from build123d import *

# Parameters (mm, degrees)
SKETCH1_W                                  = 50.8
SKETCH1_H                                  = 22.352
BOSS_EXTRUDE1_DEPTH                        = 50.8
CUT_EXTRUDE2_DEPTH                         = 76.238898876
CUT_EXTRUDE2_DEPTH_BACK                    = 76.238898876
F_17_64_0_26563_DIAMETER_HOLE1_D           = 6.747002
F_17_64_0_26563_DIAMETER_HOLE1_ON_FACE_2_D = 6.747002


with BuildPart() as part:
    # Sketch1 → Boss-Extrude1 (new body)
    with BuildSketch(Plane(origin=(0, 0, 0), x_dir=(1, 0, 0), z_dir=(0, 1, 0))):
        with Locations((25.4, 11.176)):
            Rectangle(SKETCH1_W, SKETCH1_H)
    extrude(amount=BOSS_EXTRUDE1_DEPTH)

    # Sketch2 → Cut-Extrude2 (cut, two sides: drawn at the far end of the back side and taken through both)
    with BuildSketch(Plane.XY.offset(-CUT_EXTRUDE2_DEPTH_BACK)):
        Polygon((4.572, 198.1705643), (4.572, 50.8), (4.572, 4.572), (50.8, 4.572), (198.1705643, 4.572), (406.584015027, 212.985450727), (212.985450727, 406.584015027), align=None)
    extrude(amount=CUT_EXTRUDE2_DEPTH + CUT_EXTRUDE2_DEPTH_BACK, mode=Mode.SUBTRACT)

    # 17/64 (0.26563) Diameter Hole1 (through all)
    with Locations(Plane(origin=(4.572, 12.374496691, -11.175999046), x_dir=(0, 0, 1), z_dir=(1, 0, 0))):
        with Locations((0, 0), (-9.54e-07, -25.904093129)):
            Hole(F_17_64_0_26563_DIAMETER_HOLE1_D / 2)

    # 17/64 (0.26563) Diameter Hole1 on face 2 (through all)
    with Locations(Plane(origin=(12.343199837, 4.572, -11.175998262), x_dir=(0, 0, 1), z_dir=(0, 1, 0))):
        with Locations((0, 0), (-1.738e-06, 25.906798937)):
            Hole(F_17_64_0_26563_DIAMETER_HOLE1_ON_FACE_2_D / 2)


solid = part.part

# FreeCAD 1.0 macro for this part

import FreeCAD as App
import Part
import Sketcher
from FreeCAD import Vector
Q = App.Units.Quantity


def add_polygon(sketch, points):
    """Adds a closed chain of lines whose ends are joined by coincident constraints."""
    first, n = sketch.GeometryCount, len(points)
    for a, b in zip(points, points[1:] + points[:1]):
        sketch.addGeometry(Part.LineSegment(App.Vector(*a, 0), App.Vector(*b, 0)), False)
    for i in range(n):
        sketch.addConstraint(Sketcher.Constraint("Coincident", first + i, 2, first + (i + 1) % n, 1))

doc = App.newDocument("Part")
params = doc.addObject("Spreadsheet::Sheet", "Params")
for row, (alias, value) in enumerate([
    ("sketch1_width", "2 in"),
    ("sketch1_height", "0.88 in"),
    ("pad1_length", "2 in"),
    ("hole_diameter", "6.747002 mm"),
    ("hole2_diameter", "6.747002 mm"),
], start=1):
    params.set(f"A{row}", alias)
    params.set(f"B{row}", "=" + value)
    params.setAlias(f"B{row}", alias)

body = doc.addObject("PartDesign::Body", "Body")

# Sketch on XZ plane
sketch1 = body.newObject("Sketcher::SketchObject", "Sketch")
sketch1.AttachmentSupport = (doc.getObject("XZ_Plane"), [""])
sketch1.MapMode = "FlatFace"
add_polygon(sketch1, [(0, -22), (0, 0), (51, 0), (51, -22)])  # lines 0-3
sketch1.addConstraint(Sketcher.Constraint("Vertical", 0))
sketch1.addConstraint(Sketcher.Constraint("Horizontal", 1))
sketch1.addConstraint(Sketcher.Constraint("Vertical", 2))
sketch1.addConstraint(Sketcher.Constraint("Horizontal", 3))
sketch1.addConstraint(Sketcher.Constraint("Coincident", 0, 2, -1, 1))
sketch1.addConstraint(Sketcher.Constraint("DistanceX", 1, 1, 1, 2, Q("2 in")))
sketch1.addConstraint(Sketcher.Constraint("DistanceY", 0, 1, 0, 2, Q("0.88 in")))
sketch1.setExpression("Constraints[9]", "Params.sketch1_width")
sketch1.setExpression("Constraints[10]", "Params.sketch1_height")
pad1 = body.newObject("PartDesign::Pad", "Pad")
pad1.Profile = sketch1
pad1.setExpression("Length", "Params.pad1_length")
pad1.Reversed = True

# Sketch on XY plane
sketch2 = body.newObject("Sketcher::SketchObject", "Sketch001")
sketch2.AttachmentSupport = (doc.getObject("XY_Plane"), [""])
sketch2.MapMode = "FlatFace"
add_polygon(sketch2, [(5, 198), (5, 5), (198, 5), (407, 213), (213, 407)])  # lines 0-4
sketch2.addConstraint(Sketcher.Constraint("Vertical", 0))
sketch2.addConstraint(Sketcher.Constraint("Horizontal", 1))
sketch2.addConstraint(Sketcher.Constraint("Perpendicular", 2, 3))
sketch2.addConstraint(Sketcher.Constraint("Perpendicular", 3, 4))
sketch2.addConstraint(Sketcher.Constraint("Equal", 1, 0))
sketch2.addConstraint(Sketcher.Constraint("Equal", 2, 4))
sketch2.addConstraint(Sketcher.Constraint("DistanceX", -1, 1, 0, 2, Q("0.18 in")))
sketch2.addConstraint(Sketcher.Constraint("DistanceY", -1, 1, 0, 2, Q("0.18 in")))
sketch2.addConstraint(Sketcher.Constraint("Distance", 2, 294.741129))
sketch2.addConstraint(Sketcher.Constraint("DistanceX", 1, 1, 1, 2, 193.598564))
pocket1 = body.newObject("PartDesign::Pocket", "Pocket")
pocket1.Profile = sketch2
pocket1.Type = "ThroughAll"
pocket1.Midplane = True

# Sketch on YZ plane
sketch3 = body.newObject("Sketcher::SketchObject", "Sketch002")
sketch3.AttachmentSupport = (doc.getObject("YZ_Plane"), [""])
sketch3.MapMode = "FlatFace"
sketch3.AttachmentOffset = App.Placement(Vector(0, 0, 0.18 * 25.4), App.Rotation())
sketch3.addGeometry(Part.Circle(Vector(12.4, -11.2, 0), Vector(0, 0, 1), 3.4), False)
sketch3.addGeometry(Part.Circle(Vector(38.3, -11.2, 0), Vector(0, 0, 1), 3.4), False)
sketch3.addConstraint(Sketcher.Constraint("Equal", 0, 1))
sketch3.addConstraint(Sketcher.Constraint("Horizontal", 0, 3, 1, 3))
sketch3.addConstraint(Sketcher.Constraint("DistanceY", 0, 3, -1, 1, Q("0.44 in")))
sketch3.addConstraint(Sketcher.Constraint("Diameter", 0, 6.747002))
sketch3.addConstraint(Sketcher.Constraint("DistanceX", -1, 1, 1, 3, 38.27859))
sketch3.addConstraint(Sketcher.Constraint("DistanceX", -1, 1, 0, 3, 12.374497))
doc.recompute()
hole = body.newObject("PartDesign::Hole", "Hole")
hole.Profile = sketch3
hole.ThreadType = "None"
hole.setExpression("Diameter", "Params.hole_diameter")
hole.DepthType = "ThroughAll"

# Sketch on XZ plane
sketch4 = body.newObject("Sketcher::SketchObject", "Sketch003")
sketch4.AttachmentSupport = (doc.getObject("XZ_Plane"), [""])
sketch4.MapMode = "FlatFace"
sketch4.AttachmentOffset = App.Placement(Vector(0, 0, -0.18 * 25.4), App.Rotation())
sketch4.addGeometry(Part.Circle(Vector(12.3, -11.2, 0), Vector(0, 0, 1), 3.4), False)
sketch4.addGeometry(Part.Circle(Vector(38.2, -11.2, 0), Vector(0, 0, 1), 3.4), False)
sketch4.addConstraint(Sketcher.Constraint("Equal", 0, 1))
sketch4.addConstraint(Sketcher.Constraint("Horizontal", 0, 3, 1, 3))
sketch4.addConstraint(Sketcher.Constraint("DistanceY", 0, 3, -1, 1, Q("0.4399999 in")))
sketch4.addConstraint(Sketcher.Constraint("Diameter", 0, 6.747002))
sketch4.addConstraint(Sketcher.Constraint("DistanceX", -1, 1, 0, 3, 12.3432))
sketch4.addConstraint(Sketcher.Constraint("DistanceX", -1, 1, 1, 3, 38.249999))
doc.recompute()
hole2 = body.newObject("PartDesign::Hole", "Hole001")
hole2.Profile = sketch4
hole2.ThreadType = "None"
hole2.setExpression("Diameter", "Params.hole2_diameter")
hole2.DepthType = "ThroughAll"
hole2.Reversed = True

doc.recompute()
